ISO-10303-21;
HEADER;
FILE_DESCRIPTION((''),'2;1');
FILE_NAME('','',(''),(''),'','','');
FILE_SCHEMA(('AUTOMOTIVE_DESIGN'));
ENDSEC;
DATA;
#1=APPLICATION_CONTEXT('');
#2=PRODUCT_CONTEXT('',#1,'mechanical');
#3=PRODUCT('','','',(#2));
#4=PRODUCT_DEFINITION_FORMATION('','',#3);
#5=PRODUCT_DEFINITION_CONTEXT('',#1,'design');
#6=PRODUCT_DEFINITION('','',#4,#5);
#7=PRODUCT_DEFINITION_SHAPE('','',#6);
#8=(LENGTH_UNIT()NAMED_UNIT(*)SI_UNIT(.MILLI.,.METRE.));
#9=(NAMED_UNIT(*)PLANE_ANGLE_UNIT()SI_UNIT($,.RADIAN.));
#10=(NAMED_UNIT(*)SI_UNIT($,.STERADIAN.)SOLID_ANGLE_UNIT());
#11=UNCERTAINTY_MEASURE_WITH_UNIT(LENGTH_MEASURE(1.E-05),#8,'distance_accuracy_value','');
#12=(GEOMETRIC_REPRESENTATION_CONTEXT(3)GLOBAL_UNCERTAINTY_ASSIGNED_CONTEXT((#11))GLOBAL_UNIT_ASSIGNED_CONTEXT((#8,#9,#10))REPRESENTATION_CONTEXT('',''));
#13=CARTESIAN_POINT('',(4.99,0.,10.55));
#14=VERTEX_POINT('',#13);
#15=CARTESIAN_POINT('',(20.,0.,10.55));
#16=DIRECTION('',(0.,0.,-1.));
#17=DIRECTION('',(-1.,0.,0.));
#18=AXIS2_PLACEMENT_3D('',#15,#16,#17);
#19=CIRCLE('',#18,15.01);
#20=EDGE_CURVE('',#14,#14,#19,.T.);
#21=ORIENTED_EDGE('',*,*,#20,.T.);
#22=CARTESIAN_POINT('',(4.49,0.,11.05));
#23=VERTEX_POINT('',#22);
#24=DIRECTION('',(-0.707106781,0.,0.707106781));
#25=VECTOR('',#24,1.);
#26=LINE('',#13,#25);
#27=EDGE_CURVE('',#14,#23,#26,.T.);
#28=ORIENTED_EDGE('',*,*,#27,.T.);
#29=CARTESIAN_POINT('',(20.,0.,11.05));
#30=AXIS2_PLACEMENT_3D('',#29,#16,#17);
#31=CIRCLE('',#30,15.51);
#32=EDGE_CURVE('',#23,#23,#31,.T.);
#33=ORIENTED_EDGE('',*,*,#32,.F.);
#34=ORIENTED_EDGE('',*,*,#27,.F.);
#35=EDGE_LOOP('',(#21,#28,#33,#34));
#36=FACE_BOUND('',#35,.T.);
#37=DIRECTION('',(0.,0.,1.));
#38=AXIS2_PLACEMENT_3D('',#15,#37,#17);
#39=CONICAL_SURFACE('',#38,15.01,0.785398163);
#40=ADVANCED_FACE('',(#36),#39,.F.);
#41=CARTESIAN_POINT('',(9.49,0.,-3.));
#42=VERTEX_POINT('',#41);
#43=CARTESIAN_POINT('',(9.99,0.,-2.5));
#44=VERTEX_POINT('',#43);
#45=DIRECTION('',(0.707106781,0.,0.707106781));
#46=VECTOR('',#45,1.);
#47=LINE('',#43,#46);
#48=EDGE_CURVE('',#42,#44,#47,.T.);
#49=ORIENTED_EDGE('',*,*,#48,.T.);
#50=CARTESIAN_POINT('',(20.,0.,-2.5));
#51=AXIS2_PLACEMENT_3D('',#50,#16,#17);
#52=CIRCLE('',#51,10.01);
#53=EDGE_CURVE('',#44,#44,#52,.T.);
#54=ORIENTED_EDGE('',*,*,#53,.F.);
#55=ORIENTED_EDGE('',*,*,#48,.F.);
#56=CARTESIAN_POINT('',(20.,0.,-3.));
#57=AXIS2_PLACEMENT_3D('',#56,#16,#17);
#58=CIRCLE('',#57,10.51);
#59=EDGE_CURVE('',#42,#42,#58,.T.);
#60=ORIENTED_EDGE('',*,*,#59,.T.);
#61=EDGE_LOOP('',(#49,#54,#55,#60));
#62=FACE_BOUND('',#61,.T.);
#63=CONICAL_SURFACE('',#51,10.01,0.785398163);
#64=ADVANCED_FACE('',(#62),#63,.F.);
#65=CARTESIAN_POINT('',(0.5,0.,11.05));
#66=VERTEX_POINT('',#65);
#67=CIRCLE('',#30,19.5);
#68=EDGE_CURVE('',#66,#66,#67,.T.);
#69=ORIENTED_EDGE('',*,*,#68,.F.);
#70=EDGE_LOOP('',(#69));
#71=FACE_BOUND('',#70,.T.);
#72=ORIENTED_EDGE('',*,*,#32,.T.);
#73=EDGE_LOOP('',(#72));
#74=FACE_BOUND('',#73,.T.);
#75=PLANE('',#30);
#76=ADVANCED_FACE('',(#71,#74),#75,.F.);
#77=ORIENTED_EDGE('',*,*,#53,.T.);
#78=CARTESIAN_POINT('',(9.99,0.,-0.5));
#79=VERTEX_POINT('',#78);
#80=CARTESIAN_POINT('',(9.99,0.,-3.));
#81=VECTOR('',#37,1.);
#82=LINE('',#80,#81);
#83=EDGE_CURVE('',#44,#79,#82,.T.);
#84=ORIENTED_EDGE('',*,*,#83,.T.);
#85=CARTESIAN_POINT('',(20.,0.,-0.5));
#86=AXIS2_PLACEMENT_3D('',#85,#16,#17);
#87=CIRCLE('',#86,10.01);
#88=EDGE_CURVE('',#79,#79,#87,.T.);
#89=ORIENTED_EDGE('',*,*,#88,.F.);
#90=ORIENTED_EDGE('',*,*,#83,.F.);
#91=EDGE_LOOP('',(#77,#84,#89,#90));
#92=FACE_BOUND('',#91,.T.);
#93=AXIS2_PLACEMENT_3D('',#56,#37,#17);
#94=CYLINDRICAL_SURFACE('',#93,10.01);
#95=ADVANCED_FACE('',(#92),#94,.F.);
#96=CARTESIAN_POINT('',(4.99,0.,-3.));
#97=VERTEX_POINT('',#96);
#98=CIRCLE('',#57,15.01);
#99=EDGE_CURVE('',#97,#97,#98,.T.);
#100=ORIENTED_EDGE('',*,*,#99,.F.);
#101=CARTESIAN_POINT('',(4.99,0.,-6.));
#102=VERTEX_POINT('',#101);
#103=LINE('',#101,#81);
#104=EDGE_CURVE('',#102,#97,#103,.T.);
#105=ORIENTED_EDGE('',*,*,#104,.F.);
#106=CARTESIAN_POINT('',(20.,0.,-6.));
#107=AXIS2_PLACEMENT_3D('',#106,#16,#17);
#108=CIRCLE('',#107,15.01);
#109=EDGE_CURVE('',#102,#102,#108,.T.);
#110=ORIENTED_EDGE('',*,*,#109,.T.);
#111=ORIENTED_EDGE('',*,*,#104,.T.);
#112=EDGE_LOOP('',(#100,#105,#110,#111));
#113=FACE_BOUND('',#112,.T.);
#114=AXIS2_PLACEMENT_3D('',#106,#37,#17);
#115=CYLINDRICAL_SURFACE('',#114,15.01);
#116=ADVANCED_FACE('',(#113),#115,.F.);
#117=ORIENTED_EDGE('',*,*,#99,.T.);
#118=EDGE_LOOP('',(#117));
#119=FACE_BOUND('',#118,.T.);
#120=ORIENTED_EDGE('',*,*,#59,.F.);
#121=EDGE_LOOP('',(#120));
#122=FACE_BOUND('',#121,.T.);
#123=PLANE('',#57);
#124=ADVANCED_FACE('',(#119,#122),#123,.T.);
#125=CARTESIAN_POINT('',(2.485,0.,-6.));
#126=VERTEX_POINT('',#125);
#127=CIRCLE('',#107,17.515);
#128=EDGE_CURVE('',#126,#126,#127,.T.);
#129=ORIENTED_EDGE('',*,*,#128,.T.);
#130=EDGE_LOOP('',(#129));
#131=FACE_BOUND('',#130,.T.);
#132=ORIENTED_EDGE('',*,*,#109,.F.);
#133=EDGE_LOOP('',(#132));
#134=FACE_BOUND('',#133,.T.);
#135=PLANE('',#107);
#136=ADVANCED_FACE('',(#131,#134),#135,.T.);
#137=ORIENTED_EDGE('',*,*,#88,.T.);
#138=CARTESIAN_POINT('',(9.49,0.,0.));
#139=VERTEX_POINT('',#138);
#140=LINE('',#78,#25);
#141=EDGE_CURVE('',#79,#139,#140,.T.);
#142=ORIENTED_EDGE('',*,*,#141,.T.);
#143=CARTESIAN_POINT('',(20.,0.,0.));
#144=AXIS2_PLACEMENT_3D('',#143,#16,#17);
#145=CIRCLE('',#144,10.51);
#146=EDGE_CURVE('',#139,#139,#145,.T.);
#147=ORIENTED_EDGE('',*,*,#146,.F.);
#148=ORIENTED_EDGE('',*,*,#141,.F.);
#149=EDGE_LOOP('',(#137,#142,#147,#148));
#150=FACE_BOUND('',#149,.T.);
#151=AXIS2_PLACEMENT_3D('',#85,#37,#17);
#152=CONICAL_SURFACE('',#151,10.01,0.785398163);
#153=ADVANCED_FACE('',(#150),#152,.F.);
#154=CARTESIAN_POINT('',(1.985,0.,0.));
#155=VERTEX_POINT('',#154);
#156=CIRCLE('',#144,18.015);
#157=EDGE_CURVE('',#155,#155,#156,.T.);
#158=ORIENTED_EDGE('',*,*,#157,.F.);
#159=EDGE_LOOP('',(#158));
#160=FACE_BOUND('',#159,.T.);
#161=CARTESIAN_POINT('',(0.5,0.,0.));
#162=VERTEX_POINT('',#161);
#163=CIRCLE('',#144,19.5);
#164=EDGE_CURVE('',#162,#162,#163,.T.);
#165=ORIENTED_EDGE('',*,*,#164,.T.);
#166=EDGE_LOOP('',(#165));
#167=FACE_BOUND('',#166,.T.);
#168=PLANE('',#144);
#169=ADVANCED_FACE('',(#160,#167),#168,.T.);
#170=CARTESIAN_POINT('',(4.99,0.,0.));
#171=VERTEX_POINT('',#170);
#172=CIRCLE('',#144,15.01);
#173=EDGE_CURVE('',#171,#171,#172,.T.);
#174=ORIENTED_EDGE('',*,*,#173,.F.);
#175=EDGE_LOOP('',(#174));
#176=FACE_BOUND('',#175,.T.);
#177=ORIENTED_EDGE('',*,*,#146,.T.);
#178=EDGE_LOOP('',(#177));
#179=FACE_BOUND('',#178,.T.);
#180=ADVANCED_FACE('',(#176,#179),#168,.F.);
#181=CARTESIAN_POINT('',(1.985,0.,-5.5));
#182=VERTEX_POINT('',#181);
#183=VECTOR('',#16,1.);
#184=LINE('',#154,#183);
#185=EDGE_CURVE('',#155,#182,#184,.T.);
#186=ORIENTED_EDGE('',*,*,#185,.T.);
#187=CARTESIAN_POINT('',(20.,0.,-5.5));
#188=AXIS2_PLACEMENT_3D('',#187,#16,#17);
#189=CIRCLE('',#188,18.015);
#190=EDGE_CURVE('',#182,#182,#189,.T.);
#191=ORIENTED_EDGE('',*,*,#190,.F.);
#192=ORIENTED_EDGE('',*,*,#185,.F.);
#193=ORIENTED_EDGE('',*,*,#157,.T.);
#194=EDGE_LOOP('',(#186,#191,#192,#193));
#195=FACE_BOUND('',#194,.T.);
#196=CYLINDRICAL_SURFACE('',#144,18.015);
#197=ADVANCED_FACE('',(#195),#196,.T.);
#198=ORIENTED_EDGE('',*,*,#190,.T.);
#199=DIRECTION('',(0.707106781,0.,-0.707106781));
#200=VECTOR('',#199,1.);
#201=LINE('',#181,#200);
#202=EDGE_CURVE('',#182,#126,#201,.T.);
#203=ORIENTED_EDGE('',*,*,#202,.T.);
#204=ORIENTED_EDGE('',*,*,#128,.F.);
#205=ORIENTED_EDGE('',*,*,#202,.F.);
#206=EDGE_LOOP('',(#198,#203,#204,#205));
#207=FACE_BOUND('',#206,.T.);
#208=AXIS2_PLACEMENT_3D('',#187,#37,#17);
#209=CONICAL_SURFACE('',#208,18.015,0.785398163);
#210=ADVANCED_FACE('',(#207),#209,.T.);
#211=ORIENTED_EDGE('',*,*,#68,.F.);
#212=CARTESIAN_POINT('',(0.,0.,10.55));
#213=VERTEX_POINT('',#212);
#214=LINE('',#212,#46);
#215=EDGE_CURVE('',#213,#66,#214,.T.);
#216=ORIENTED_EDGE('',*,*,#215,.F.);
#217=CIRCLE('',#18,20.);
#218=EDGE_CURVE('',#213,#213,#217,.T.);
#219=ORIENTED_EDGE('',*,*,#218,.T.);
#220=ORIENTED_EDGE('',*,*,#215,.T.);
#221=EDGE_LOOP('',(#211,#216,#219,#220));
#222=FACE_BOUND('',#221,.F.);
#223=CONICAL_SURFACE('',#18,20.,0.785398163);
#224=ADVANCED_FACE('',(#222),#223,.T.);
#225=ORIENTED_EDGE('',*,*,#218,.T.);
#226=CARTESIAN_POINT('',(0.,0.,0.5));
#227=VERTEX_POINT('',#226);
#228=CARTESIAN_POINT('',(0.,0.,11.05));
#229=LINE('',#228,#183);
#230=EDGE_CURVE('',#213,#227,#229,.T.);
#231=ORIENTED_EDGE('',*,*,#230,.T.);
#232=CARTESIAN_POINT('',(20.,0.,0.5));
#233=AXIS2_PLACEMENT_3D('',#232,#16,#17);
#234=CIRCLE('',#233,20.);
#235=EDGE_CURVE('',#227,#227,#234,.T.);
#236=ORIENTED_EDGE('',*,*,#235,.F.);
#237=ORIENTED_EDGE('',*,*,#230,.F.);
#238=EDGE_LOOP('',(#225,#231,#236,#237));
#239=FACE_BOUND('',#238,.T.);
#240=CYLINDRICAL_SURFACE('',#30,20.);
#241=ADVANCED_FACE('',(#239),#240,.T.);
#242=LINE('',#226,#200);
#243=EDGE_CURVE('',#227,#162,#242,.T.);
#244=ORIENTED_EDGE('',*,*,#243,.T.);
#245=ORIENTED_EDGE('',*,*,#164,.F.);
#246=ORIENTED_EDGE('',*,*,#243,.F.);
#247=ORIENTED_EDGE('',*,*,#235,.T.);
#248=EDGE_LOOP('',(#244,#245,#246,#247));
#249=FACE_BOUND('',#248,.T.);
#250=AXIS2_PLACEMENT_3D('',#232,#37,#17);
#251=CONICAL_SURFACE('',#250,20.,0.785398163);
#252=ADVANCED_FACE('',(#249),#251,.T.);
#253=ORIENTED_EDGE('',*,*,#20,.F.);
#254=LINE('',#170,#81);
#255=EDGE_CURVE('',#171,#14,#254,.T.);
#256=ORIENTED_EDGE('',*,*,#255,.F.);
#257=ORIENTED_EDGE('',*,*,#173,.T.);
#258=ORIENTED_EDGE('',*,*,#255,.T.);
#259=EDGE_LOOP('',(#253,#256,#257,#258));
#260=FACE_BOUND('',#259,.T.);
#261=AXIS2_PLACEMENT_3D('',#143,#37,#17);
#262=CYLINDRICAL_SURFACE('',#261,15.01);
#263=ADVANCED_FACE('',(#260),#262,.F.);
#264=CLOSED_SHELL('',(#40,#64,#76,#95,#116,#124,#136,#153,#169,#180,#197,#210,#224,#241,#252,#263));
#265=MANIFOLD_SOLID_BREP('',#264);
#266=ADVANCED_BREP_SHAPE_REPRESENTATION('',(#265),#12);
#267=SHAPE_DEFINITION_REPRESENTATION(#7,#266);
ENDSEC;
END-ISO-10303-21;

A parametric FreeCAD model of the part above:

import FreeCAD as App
import Part
import Sketcher
from FreeCAD import Vector


def edges_at(feature, points):
    """Names of the edges that pass closest to the given points."""
    edges = feature.Shape.Edges
    near = lambda p: min(range(len(edges)), key=lambda i: edges[i].distToShape(Part.Vertex(*p))[0])
    return sorted({f"Edge{near(p) + 1}" for p in points})


def add_polygon(sketch, points):
    """Adds a closed chain of lines whose ends are joined by coincident constraints."""
    first, n = sketch.GeometryCount, len(points)
    for a, b in zip(points, points[1:] + points[:1]):
        sketch.addGeometry(Part.LineSegment(App.Vector(*a, 0), App.Vector(*b, 0)), False)
    for i in range(n):
        sketch.addConstraint(Sketcher.Constraint("Coincident", first + i, 2, first + (i + 1) % n, 1))

doc = App.newDocument("Part")
params = doc.addObject("Spreadsheet::Sheet", "Params")
for row, (alias, value) in enumerate([
    ("sketch1_width", "5 mm"),
    ("sketch1_height", "6 mm"),
    ("sketch1_width2", "4.99 mm"),
    ("sketch1_height2", "11.05 mm"),
    ("revolution_angle", "360 deg"),
    ("chamfer_size", "0.5 mm"),
], start=1):
    params.set(f"A{row}", alias)
    params.set(f"B{row}", "=" + value)
    params.setAlias(f"B{row}", alias)

body = doc.addObject("PartDesign::Body", "Body")

sketch1 = body.newObject("Sketcher::SketchObject", "Sketch")
sketch1.AttachmentSupport = (doc.getObject("XZ_Plane"), [""])
sketch1.MapMode = "FlatFace"
add_polygon(sketch1, [(0, 11.05), (0, 0), (1.985, 0), (1.985, -6), (4.99, -6), (4.99, -3), (9.99, -3), (9.99, 0), (4.99, 0), (4.99, 11.05)])
sketch1.addGeometry(Part.LineSegment(Vector(20, 11.05, 0), Vector(20, -6, 0)), True)
sketch1.addConstraint(Sketcher.Constraint("Vertical", 0))
sketch1.addConstraint(Sketcher.Constraint("Horizontal", 1))
sketch1.addConstraint(Sketcher.Constraint("Vertical", 2))
sketch1.addConstraint(Sketcher.Constraint("Horizontal", 3))
sketch1.addConstraint(Sketcher.Constraint("Vertical", 4))
sketch1.addConstraint(Sketcher.Constraint("Horizontal", 5))
sketch1.addConstraint(Sketcher.Constraint("Vertical", 6))
sketch1.addConstraint(Sketcher.Constraint("Horizontal", 7))
sketch1.addConstraint(Sketcher.Constraint("Vertical", 8))
sketch1.addConstraint(Sketcher.Constraint("Horizontal", 9))
sketch1.addConstraint(Sketcher.Constraint("Vertical", 10))
sketch1.addConstraint(Sketcher.Constraint("Coincident", 0, 2, -1, 1))
sketch1.addConstraint(Sketcher.Constraint("PointOnObject", 6, 2, -1))
sketch1.addConstraint(Sketcher.Constraint("Horizontal", 9, 2, 10, 1))
sketch1.addConstraint(Sketcher.Constraint("Horizontal", 3, 2, 10, 2))
sketch1.addConstraint(Sketcher.Constraint("Vertical", 4, 2, 7, 2))
sketch1.addConstraint(Sketcher.Constraint("Equal", 4, 6))
sketch1.addConstraint(Sketcher.Constraint("DistanceX", 5, 1, 5, 2, 5.0))
sketch1.addConstraint(Sketcher.Constraint("DistanceY", 2, 2, 2, 1, 6.0))
sketch1.addConstraint(Sketcher.Constraint("DistanceX", -1, 1, 10, 1, 20.0))
sketch1.addConstraint(Sketcher.Constraint("DistanceX", 9, 2, 9, 1, 4.99))
sketch1.addConstraint(Sketcher.Constraint("DistanceY", 0, 2, 0, 1, 11.05))
sketch1.addConstraint(Sketcher.Constraint("DistanceX", 1, 1, 1, 2, 1.985))
sketch1.setExpression("Constraints[27]", "Params.sketch1_width")
sketch1.setExpression("Constraints[28]", "Params.sketch1_height")
sketch1.setExpression("Constraints[30]", "Params.sketch1_width2")
sketch1.setExpression("Constraints[31]", "Params.sketch1_height2")
revolution = body.newObject("PartDesign::Revolution", "Revolution")
revolution.Profile = sketch1
revolution.ReferenceAxis = (sketch1, ["Axis0"])
revolution.setExpression("Angle", "Params.revolution_angle")
doc.recompute()

chamfer = body.newObject("PartDesign::Chamfer", "Chamfer")
chamfer.Base = (revolution, edges_at(revolution, [
    (35.01, 0, 11.05),
    (40, 0, 11.05),
    (40, 0, 0),
    (38.015, 0, -6),
    (30.01, 0, -3),
    (30.01, 0, 0),
]))
chamfer.setExpression("Size", "Params.chamfer_size")

doc.recompute()
